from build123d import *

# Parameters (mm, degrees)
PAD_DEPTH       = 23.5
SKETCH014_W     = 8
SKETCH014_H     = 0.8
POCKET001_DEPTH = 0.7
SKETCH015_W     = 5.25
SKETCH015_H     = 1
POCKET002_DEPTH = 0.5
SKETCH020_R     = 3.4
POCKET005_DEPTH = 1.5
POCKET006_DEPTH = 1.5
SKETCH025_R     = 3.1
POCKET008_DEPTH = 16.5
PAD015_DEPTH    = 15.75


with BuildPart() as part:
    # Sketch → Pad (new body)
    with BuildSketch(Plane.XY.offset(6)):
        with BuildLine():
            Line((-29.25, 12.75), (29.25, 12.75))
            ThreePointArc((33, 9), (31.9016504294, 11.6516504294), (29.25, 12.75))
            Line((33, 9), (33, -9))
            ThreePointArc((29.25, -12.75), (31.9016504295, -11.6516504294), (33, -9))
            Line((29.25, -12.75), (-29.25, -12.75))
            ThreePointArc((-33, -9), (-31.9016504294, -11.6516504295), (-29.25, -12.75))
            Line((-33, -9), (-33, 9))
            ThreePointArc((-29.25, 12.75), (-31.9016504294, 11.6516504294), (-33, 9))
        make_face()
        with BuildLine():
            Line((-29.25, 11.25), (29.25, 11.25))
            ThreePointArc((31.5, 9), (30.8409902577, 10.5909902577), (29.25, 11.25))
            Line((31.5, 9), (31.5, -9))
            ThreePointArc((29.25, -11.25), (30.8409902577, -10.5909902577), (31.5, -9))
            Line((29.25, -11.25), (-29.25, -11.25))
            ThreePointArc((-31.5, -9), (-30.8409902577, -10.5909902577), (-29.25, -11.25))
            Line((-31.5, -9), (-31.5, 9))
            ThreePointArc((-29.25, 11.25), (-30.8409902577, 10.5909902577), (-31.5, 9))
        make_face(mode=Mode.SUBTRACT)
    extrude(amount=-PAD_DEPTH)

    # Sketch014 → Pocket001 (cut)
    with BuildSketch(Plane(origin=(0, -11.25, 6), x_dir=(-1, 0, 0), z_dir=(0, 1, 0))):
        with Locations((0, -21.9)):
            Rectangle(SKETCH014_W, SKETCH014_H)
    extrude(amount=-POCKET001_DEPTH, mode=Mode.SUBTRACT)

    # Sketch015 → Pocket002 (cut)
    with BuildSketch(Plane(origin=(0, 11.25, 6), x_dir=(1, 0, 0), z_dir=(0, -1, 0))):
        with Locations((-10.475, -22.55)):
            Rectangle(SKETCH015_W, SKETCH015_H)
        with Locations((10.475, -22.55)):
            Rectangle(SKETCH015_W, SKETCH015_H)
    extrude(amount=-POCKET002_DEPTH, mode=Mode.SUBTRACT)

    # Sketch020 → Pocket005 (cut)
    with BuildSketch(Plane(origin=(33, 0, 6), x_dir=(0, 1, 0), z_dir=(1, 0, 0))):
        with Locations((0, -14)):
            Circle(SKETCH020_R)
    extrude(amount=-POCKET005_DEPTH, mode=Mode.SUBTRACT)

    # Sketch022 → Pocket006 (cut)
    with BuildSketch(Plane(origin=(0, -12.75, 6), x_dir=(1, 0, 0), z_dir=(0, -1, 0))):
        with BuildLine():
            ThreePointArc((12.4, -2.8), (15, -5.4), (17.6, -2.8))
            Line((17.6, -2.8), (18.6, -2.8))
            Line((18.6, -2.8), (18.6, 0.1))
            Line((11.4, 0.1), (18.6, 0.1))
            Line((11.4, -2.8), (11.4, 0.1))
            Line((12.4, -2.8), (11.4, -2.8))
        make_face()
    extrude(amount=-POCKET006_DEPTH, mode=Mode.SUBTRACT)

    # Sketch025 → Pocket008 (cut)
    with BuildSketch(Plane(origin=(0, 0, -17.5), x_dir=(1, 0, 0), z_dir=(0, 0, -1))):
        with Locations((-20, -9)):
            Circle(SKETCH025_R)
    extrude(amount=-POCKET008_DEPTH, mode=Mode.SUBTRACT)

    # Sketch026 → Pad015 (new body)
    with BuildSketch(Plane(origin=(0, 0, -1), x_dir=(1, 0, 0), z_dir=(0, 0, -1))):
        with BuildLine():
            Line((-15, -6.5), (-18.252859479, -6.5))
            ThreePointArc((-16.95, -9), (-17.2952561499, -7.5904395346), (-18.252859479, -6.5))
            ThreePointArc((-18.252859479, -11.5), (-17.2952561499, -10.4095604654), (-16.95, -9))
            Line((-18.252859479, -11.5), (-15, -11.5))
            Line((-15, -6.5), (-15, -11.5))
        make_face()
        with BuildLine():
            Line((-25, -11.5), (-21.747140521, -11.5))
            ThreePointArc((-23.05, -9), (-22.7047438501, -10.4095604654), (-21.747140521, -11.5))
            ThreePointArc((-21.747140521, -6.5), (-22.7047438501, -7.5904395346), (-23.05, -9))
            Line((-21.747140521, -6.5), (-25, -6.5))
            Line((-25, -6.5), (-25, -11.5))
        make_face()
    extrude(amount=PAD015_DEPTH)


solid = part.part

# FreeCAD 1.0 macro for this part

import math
import FreeCAD as App
import Part
import Sketcher
from FreeCAD import Vector
Q = App.Units.Quantity

doc = App.newDocument("Part")
body = doc.addObject("PartDesign::Body", "Body")

# Sketch on XY plane
sketch1 = doc.addObject("Sketcher::SketchObject", "Sketch")
body.addObject(sketch1)
sketch1.AttachmentSupport = (doc.XY_Plane, [""])
sketch1.MapMode = "FlatFace"
sketch1.AttachmentOffset = App.Placement(Vector(0, 0, 6), App.Rotation())
sketch1.addGeometry([
    Part.LineSegment(Vector(29.2, 12.8, 0), Vector(-29.2, 12.8, 0)),  # 0
    Part.ArcOfCircle(Part.Circle(Vector(-29.2, 9, 0), Vector(0, 0, 1), 3.8), math.radians(90), math.radians(180)),  # 1
    Part.LineSegment(Vector(-33, 9, 0), Vector(-33, -9, 0)),  # 2
    Part.ArcOfCircle(Part.Circle(Vector(-29.2, -9, 0), Vector(0, 0, 1), 3.8), math.radians(180), math.radians(270)),  # 3
    Part.LineSegment(Vector(-29.2, -12.8, 0), Vector(29.2, -12.8, 0)),  # 4
    Part.ArcOfCircle(Part.Circle(Vector(29.2, -9, 0), Vector(0, 0, 1), 3.8), math.radians(-90), math.radians(0)),  # 5
    Part.LineSegment(Vector(33, -9, 0), Vector(33, 9, 0)),  # 6
    Part.ArcOfCircle(Part.Circle(Vector(29.2, 9, 0), Vector(0, 0, 1), 3.8), math.radians(0), math.radians(90)),  # 7
    Part.LineSegment(Vector(-29.2, 11.2, 0), Vector(29.2, 11.2, 0)),  # 8
    Part.ArcOfCircle(Part.Circle(Vector(29.2, 9, 0), Vector(0, 0, 1), 2.2), math.radians(0), math.radians(90)),  # 9
    Part.LineSegment(Vector(31.5, 9, 0), Vector(31.5, -9, 0)),  # 10
    Part.ArcOfCircle(Part.Circle(Vector(29.2, -9, 0), Vector(0, 0, 1), 2.2), math.radians(-90), math.radians(0)),  # 11
    Part.LineSegment(Vector(29.2, -11.2, 0), Vector(-29.2, -11.2, 0)),  # 12
    Part.ArcOfCircle(Part.Circle(Vector(-29.2, -9, 0), Vector(0, 0, 1), 2.2), math.radians(180), math.radians(270)),  # 13
    Part.LineSegment(Vector(-31.5, -9, 0), Vector(-31.5, 9, 0)),  # 14
    Part.ArcOfCircle(Part.Circle(Vector(-29.2, 9, 0), Vector(0, 0, 1), 2.2), math.radians(90), math.radians(180)),  # 15
], False)
sketch1.addConstraint([
    Sketcher.Constraint("Tangent", 0, 2, 1, 1),
    Sketcher.Constraint("Tangent", 1, 2, 2, 1),
    Sketcher.Constraint("Tangent", 2, 2, 3, 1),
    Sketcher.Constraint("Tangent", 3, 2, 4, 1),
    Sketcher.Constraint("Tangent", 4, 2, 5, 1),
    Sketcher.Constraint("Tangent", 5, 2, 6, 1),
    Sketcher.Constraint("Tangent", 6, 2, 7, 1),
    Sketcher.Constraint("Tangent", 7, 2, 0, 1),
    Sketcher.Constraint("Tangent", 8, 2, 9, 2),
    Sketcher.Constraint("Tangent", 9, 1, 10, 1),
    Sketcher.Constraint("Tangent", 10, 2, 11, 2),
    Sketcher.Constraint("Tangent", 11, 1, 12, 1),
    Sketcher.Constraint("Tangent", 12, 2, 13, 2),
    Sketcher.Constraint("Tangent", 13, 1, 14, 1),
    Sketcher.Constraint("Tangent", 14, 2, 15, 2),
    Sketcher.Constraint("Tangent", 15, 1, 8, 1),
    Sketcher.Constraint("Horizontal", 0),
    Sketcher.Constraint("Vertical", 2),
    Sketcher.Constraint("Horizontal", 4),
    Sketcher.Constraint("Vertical", 6),
    Sketcher.Constraint("Horizontal", 8),
    Sketcher.Constraint("Vertical", 10),
    Sketcher.Constraint("Horizontal", 12),
    Sketcher.Constraint("Vertical", 14),
    Sketcher.Constraint("Coincident", 9, 3, 7, 3),
    Sketcher.Constraint("Coincident", 11, 3, 5, 3),
    Sketcher.Constraint("Coincident", 13, 3, 3, 3),
    Sketcher.Constraint("Equal", 1, 3),
    Sketcher.Constraint("Equal", 3, 5),
    Sketcher.Constraint("Equal", 5, 7),
    Sketcher.Constraint("Equal", 13, 15),
    Sketcher.Constraint("Symmetric", 1, 3, 5, 3, -1, 1),
    Sketcher.Constraint("DistanceY", 2, 2, 2, 1, Q("18 mm")),
    Sketcher.Constraint("Radius", 1, Q("3.75 mm")),
    Sketcher.Constraint("Radius", 9, Q("2.25 mm")),
    Sketcher.Constraint("DistanceX", 0, 2, 0, 1, Q("58.5 mm")),
])
pad1 = doc.addObject("PartDesign::Pad", "Pad")
body.addObject(pad1)
pad1.Profile = sketch1
pad1.Length = 23.5
pad1.Reversed = True

# Sketch on XZ plane
sketch2 = doc.addObject("Sketcher::SketchObject", "Sketch001")
body.addObject(sketch2)
sketch2.AttachmentSupport = (doc.XZ_Plane, [""])
sketch2.MapMode = "FlatFace"
sketch2.AttachmentOffset = App.Placement(Vector(0, 0, 11.25), App.Rotation())
sketch2.addGeometry([
    Part.LineSegment(Vector(4, -15.5, 0), Vector(4, -16.3, 0)),
    Part.LineSegment(Vector(4, -16.3, 0), Vector(-4, -16.3, 0)),
    Part.LineSegment(Vector(-4, -16.3, 0), Vector(-4, -15.5, 0)),
    Part.LineSegment(Vector(-4, -15.5, 0), Vector(4, -15.5, 0)),
], False)
sketch2.addConstraint([
    Sketcher.Constraint("Coincident", 0, 2, 1, 1),
    Sketcher.Constraint("Coincident", 1, 2, 2, 1),
    Sketcher.Constraint("Coincident", 2, 2, 3, 1),
    Sketcher.Constraint("Coincident", 3, 2, 0, 1),
    Sketcher.Constraint("Vertical", 0),
    Sketcher.Constraint("Horizontal", 1),
    Sketcher.Constraint("Vertical", 2),
    Sketcher.Constraint("Horizontal", 3),
    Sketcher.Constraint("DistanceX", 1, 2, 1, 1, Q("8 mm")),
    Sketcher.Constraint("DistanceY", 0, 2, 0, 1, Q("0.8 mm")),
    Sketcher.Constraint("DistanceX", -1, 1, 0, 2, Q("4 mm")),
    Sketcher.Constraint("DistanceY", 0, 2, -1, 1, Q("16.3 mm")),
])
pocket1 = doc.addObject("PartDesign::Pocket", "Pocket")
body.addObject(pocket1)
pocket1.Profile = sketch2
pocket1.Length = 0.7
pocket1.Reversed = True

# Sketch on XZ plane
sketch3 = doc.addObject("Sketcher::SketchObject", "Sketch002")
body.addObject(sketch3)
sketch3.AttachmentSupport = (doc.XZ_Plane, [""])
sketch3.MapMode = "FlatFace"
sketch3.AttachmentOffset = App.Placement(Vector(0, 0, -11.25), App.Rotation())
sketch3.addGeometry([
    Part.LineSegment(Vector(-13.1, -16.1, 0), Vector(-13.1, -17.1, 0)),  # 0
    Part.LineSegment(Vector(-13.1, -17.1, 0), Vector(-7.8, -17.1, 0)),  # 1
    Part.LineSegment(Vector(-7.8, -17.1, 0), Vector(-7.8, -16.1, 0)),  # 2
    Part.LineSegment(Vector(-7.8, -16.1, 0), Vector(-13.1, -16.1, 0)),  # 3
    Part.LineSegment(Vector(7.8, -16.1, 0), Vector(7.8, -17.1, 0)),  # 4
    Part.LineSegment(Vector(7.8, -17.1, 0), Vector(13.1, -17.1, 0)),  # 5
    Part.LineSegment(Vector(13.1, -17.1, 0), Vector(13.1, -16.1, 0)),  # 6
    Part.LineSegment(Vector(13.1, -16.1, 0), Vector(7.8, -16.1, 0)),  # 7
], False)
sketch3.addConstraint([
    Sketcher.Constraint("Coincident", 0, 2, 1, 1),
    Sketcher.Constraint("Coincident", 1, 2, 2, 1),
    Sketcher.Constraint("Coincident", 2, 2, 3, 1),
    Sketcher.Constraint("Coincident", 3, 2, 0, 1),
    Sketcher.Constraint("Coincident", 4, 2, 5, 1),
    Sketcher.Constraint("Coincident", 5, 2, 6, 1),
    Sketcher.Constraint("Coincident", 6, 2, 7, 1),
    Sketcher.Constraint("Coincident", 7, 2, 4, 1),
    Sketcher.Constraint("Vertical", 0),
    Sketcher.Constraint("Horizontal", 1),
    Sketcher.Constraint("Vertical", 2),
    Sketcher.Constraint("Horizontal", 3),
    Sketcher.Constraint("Vertical", 4),
    Sketcher.Constraint("Horizontal", 5),
    Sketcher.Constraint("Vertical", 6),
    Sketcher.Constraint("Horizontal", 7),
    Sketcher.Constraint("Symmetric", 1, 2, 4, 2, -2),
    Sketcher.Constraint("Symmetric", 3, 2, 6, 2, -2),
    Sketcher.Constraint("DistanceY", 0, 2, 0, 1, Q("1 mm")),
    Sketcher.Constraint("DistanceX", 1, 1, 1, 2, Q("5.25 mm")),
    Sketcher.Constraint("DistanceX", 0, 2, -1, 1, Q("13.1 mm")),
    Sketcher.Constraint("DistanceY", 0, 2, -1, 1, Q("17.05 mm")),
])
pocket2 = doc.addObject("PartDesign::Pocket", "Pocket001")
body.addObject(pocket2)
pocket2.Profile = sketch3
pocket2.Length = 0.5

# Sketch on YZ plane
sketch4 = doc.addObject("Sketcher::SketchObject", "Sketch003")
body.addObject(sketch4)
sketch4.AttachmentSupport = (doc.YZ_Plane, [""])
sketch4.MapMode = "FlatFace"
sketch4.AttachmentOffset = App.Placement(Vector(0, 0, 33), App.Rotation())
sketch4.addGeometry(Part.Circle(Vector(0, -8, 0), Vector(0, 0, 1), 3.4), False)
sketch4.addConstraint([
    Sketcher.Constraint("PointOnObject", 0, 3, -2),
    Sketcher.Constraint("Diameter", 0, Q("6.8 mm")),
    Sketcher.Constraint("DistanceY", 0, 3, -1, 1, Q("8 mm")),
])
pocket3 = doc.addObject("PartDesign::Pocket", "Pocket002")
body.addObject(pocket3)
pocket3.Profile = sketch4
pocket3.Length = 1.5

# Sketch on XZ plane
sketch5 = doc.addObject("Sketcher::SketchObject", "Sketch004")
body.addObject(sketch5)
sketch5.AttachmentSupport = (doc.XZ_Plane, [""])
sketch5.MapMode = "FlatFace"
sketch5.AttachmentOffset = App.Placement(Vector(0, 0, 12.75), App.Rotation())
sketch5.addGeometry([
    Part.ArcOfCircle(Part.Circle(Vector(15, 3.2, 0), Vector(0, 0, 1), 2.6), math.radians(180), math.radians(360)),  # 0
    Part.LineSegment(Vector(17.6, 3.2, 0), Vector(18.6, 3.2, 0)),  # 1
    Part.LineSegment(Vector(18.6, 3.2, 0), Vector(18.6, 6.1, 0)),  # 2
    Part.LineSegment(Vector(18.6, 6.1, 0), Vector(11.4, 6.1, 0)),  # 3
    Part.LineSegment(Vector(11.4, 6.1, 0), Vector(11.4, 3.2, 0)),  # 4
    Part.LineSegment(Vector(11.4, 3.2, 0), Vector(12.4, 3.2, 0)),  # 5
], False)
sketch5.addConstraint([
    Sketcher.Constraint("Coincident", 0, 2, 1, 1),
    Sketcher.Constraint("Coincident", 1, 2, 2, 1),
    Sketcher.Constraint("Coincident", 2, 2, 3, 1),
    Sketcher.Constraint("Coincident", 3, 2, 4, 1),
    Sketcher.Constraint("Coincident", 4, 2, 5, 1),
    Sketcher.Constraint("Coincident", 5, 2, 0, 1),
    Sketcher.Constraint("Horizontal", 1),
    Sketcher.Constraint("Vertical", 2),
    Sketcher.Constraint("Horizontal", 3),
    Sketcher.Constraint("Vertical", 4),
    Sketcher.Constraint("Horizontal", 5),
    Sketcher.Constraint("Horizontal", 1, 2, 4, 2),
    Sketcher.Constraint("Equal", 1, 5),
    Sketcher.Constraint("Radius", 0, Q("2.6 mm")),
    Sketcher.Constraint("DistanceX", 1, 1, 1, 2, Q("1 mm")),
    Sketcher.Constraint("DistanceY", 2, 1, 2, 2, Q("2.9 mm")),
    Sketcher.Constraint("DistanceX", -1, 1, 0, 3, Q("15 mm")),
    Sketcher.Constraint("DistanceY", -1, 1, 0, 3, Q("3.2 mm")),
    Sketcher.Constraint("DistanceY", -1, 1, 0, 2, Q("3.2 mm")),
])
pocket4 = doc.addObject("PartDesign::Pocket", "Pocket003")
body.addObject(pocket4)
pocket4.Profile = sketch5
pocket4.Length = 1.5

# Sketch on XY plane
sketch6 = doc.addObject("Sketcher::SketchObject", "Sketch005")
body.addObject(sketch6)
sketch6.AttachmentSupport = (doc.XY_Plane, [""])
sketch6.MapMode = "FlatFace"
sketch6.AttachmentOffset = App.Placement(Vector(0, 0, -17.5), App.Rotation())
sketch6.addGeometry(Part.Circle(Vector(-20, 9, 0), Vector(0, 0, 1), 3.1), False)
sketch6.addConstraint([
    Sketcher.Constraint("Diameter", 0, Q("6.2 mm")),
    Sketcher.Constraint("DistanceX", 0, 3, -1, 1, Q("20 mm")),
    Sketcher.Constraint("DistanceY", -1, 1, 0, 3, Q("9 mm")),
])
pocket5 = doc.addObject("PartDesign::Pocket", "Pocket004")
body.addObject(pocket5)
pocket5.Profile = sketch6
pocket5.Length = 16.5
pocket5.Reversed = True

# Sketch on XY plane
sketch7 = doc.addObject("Sketcher::SketchObject", "Sketch006")
body.addObject(sketch7)
sketch7.AttachmentSupport = (doc.XY_Plane, [""])
sketch7.MapMode = "FlatFace"
sketch7.AttachmentOffset = App.Placement(Vector(0, 0, -1), App.Rotation())
sketch7.addGeometry([
    Part.LineSegment(Vector(-15, 6.5, 0), Vector(-18.3, 6.5, 0)),  # 0
    Part.ArcOfCircle(Part.Circle(Vector(-20, 9, 0), Vector(0, 0, 1), 3), math.radians(-55), math.radians(0)),  # 1
    Part.ArcOfCircle(Part.Circle(Vector(-20, 9, 0), Vector(0, 0, 1), 3), math.radians(0), math.radians(55)),  # 2
    Part.LineSegment(Vector(-18.3, 11.5, 0), Vector(-15, 11.5, 0)),  # 3
    Part.LineSegment(Vector(-15, 11.5, 0), Vector(-15, 6.5, 0)),  # 4
    Part.LineSegment(Vector(-25, 11.5, 0), Vector(-21.7, 11.5, 0)),  # 5
    Part.ArcOfCircle(Part.Circle(Vector(-20, 9, 0), Vector(0, 0, 1), 3), math.radians(125), math.radians(180)),  # 6
    Part.ArcOfCircle(Part.Circle(Vector(-20, 9, 0), Vector(0, 0, 1), 3), math.radians(180), math.radians(235)),  # 7
    Part.LineSegment(Vector(-21.7, 6.5, 0), Vector(-25, 6.5, 0)),  # 8
    Part.LineSegment(Vector(-25, 6.5, 0), Vector(-25, 11.5, 0)),  # 9
], False)
sketch7.addConstraint([
    Sketcher.Constraint("Coincident", 0, 2, 1, 1),
    Sketcher.Constraint("Tangent", 1, 2, 2, 1),
    Sketcher.Constraint("Coincident", 2, 2, 3, 1),
    Sketcher.Constraint("Coincident", 3, 2, 4, 1),
    Sketcher.Constraint("Coincident", 4, 2, 0, 1),
    Sketcher.Constraint("Coincident", 5, 2, 6, 1),
    Sketcher.Constraint("Tangent", 6, 2, 7, 1),
    Sketcher.Constraint("Coincident", 7, 2, 8, 1),
    Sketcher.Constraint("Coincident", 8, 2, 9, 1),
    Sketcher.Constraint("Coincident", 9, 2, 5, 1),
    Sketcher.Constraint("Horizontal", 0),
    Sketcher.Constraint("Horizontal", 3),
    Sketcher.Constraint("Vertical", 4),
    Sketcher.Constraint("Horizontal", 5),
    Sketcher.Constraint("Horizontal", 8),
    Sketcher.Constraint("Vertical", 9),
    Sketcher.Constraint("Coincident", 6, 3, 1, 3),
    Sketcher.Constraint("Equal", 1, 2),
    Sketcher.Constraint("Equal", 2, 6),
    Sketcher.Constraint("Equal", 6, 7),
    Sketcher.Constraint("Horizontal", 7, 3, 1, 2),
    Sketcher.Constraint("Horizontal", 3, 2, 5, 2),
    Sketcher.Constraint("Horizontal", 1, 2, 6, 2),
    Sketcher.Constraint("Horizontal", 4, 2, 7, 2),
    Sketcher.Constraint("Vertical", 0, 2, 2, 2),
    Sketcher.Constraint("Equal", 3, 5),
    Sketcher.Constraint("DistanceY", 4, 2, 4, 1, Q("5 mm")),
    Sketcher.Constraint("Radius", 1, Q("3.05 mm")),
    Sketcher.Constraint("DistanceX", 1, 3, -1, 1, Q("20 mm")),
    Sketcher.Constraint("DistanceY", -1, 1, 1, 3, Q("9 mm")),
    Sketcher.Constraint("DistanceX", 3, 2, -1, 1, Q("15 mm")),
])
pad2 = doc.addObject("PartDesign::Pad", "Pad001")
body.addObject(pad2)
pad2.Profile = sketch7
pad2.Length = 15.75
pad2.Reversed = True

doc.recompute()
